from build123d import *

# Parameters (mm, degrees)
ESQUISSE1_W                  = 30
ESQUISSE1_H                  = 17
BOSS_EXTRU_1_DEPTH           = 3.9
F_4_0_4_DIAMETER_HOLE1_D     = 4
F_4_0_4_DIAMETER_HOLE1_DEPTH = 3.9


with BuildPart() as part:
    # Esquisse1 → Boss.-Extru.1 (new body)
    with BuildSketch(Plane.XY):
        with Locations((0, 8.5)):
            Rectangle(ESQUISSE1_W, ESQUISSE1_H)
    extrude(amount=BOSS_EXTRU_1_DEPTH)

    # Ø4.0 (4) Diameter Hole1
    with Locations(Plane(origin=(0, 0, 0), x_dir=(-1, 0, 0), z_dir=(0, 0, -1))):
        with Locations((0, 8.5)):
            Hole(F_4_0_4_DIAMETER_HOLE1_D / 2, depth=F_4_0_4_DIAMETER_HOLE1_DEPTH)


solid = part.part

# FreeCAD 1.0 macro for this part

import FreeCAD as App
import Part
import Sketcher

V = App.Vector
Q = App.Units.Quantity

doc = App.newDocument("Part")
body = doc.addObject("PartDesign::Body", "Body")

# Sketch on XY plane
sketch1 = body.newObject("Sketcher::SketchObject", "Sketch")
sketch1.AttachmentSupport = (doc.getObject("XY_Plane"), [""])
sketch1.MapMode = "FlatFace"
sketch1.addGeometry([
    Part.LineSegment(V(-15, 17, 0), V(-15, 0, 0)),
    Part.LineSegment(V(-15, 0, 0), V(15, 0, 0)),
    Part.LineSegment(V(15, 0, 0), V(15, 17, 0)),
    Part.LineSegment(V(15, 17, 0), V(-15, 17, 0)),
], False)
sketch1.addConstraint([
    Sketcher.Constraint("Coincident", 0, 2, 1, 1),
    Sketcher.Constraint("Coincident", 1, 2, 2, 1),
    Sketcher.Constraint("Coincident", 2, 2, 3, 1),
    Sketcher.Constraint("Coincident", 3, 2, 0, 1),
    Sketcher.Constraint("Vertical", 0),
    Sketcher.Constraint("Horizontal", 1),
    Sketcher.Constraint("Vertical", 2),
    Sketcher.Constraint("Horizontal", 3),
    Sketcher.Constraint("Symmetric", 0, 2, 1, 2, -1, 1),
    Sketcher.Constraint("DistanceX", 1, 1, 1, 2, Q("30 mm")),
    Sketcher.Constraint("DistanceY", 0, 2, 0, 1, Q("17 mm")),
])
pad1 = body.newObject("PartDesign::Pad", "Pad")
pad1.Profile = sketch1
pad1.Length = 3.9

# Sketch on XY plane
sketch2 = body.newObject("Sketcher::SketchObject", "Sketch001")
sketch2.AttachmentSupport = (doc.getObject("XY_Plane"), [""])
sketch2.MapMode = "FlatFace"
sketch2.addGeometry(Part.Circle(V(0, 8.5, 0), V(0, 0, 1), 2), False)
sketch2.addConstraint([
    Sketcher.Constraint("PointOnObject", 0, 3, -2),
    Sketcher.Constraint("Diameter", 0, Q("4 mm")),
    Sketcher.Constraint("DistanceY", -1, 1, 0, 3, Q("8.5 mm")),
])
doc.recompute()
hole = body.newObject("PartDesign::Hole", "Hole")
hole.Profile = sketch2
hole.ThreadType = "None"
hole.Diameter = 4
hole.DepthType = "Dimension"
hole.Depth = 3.9
hole.DrillPoint = "Flat"
hole.Reversed = True

doc.recompute()
